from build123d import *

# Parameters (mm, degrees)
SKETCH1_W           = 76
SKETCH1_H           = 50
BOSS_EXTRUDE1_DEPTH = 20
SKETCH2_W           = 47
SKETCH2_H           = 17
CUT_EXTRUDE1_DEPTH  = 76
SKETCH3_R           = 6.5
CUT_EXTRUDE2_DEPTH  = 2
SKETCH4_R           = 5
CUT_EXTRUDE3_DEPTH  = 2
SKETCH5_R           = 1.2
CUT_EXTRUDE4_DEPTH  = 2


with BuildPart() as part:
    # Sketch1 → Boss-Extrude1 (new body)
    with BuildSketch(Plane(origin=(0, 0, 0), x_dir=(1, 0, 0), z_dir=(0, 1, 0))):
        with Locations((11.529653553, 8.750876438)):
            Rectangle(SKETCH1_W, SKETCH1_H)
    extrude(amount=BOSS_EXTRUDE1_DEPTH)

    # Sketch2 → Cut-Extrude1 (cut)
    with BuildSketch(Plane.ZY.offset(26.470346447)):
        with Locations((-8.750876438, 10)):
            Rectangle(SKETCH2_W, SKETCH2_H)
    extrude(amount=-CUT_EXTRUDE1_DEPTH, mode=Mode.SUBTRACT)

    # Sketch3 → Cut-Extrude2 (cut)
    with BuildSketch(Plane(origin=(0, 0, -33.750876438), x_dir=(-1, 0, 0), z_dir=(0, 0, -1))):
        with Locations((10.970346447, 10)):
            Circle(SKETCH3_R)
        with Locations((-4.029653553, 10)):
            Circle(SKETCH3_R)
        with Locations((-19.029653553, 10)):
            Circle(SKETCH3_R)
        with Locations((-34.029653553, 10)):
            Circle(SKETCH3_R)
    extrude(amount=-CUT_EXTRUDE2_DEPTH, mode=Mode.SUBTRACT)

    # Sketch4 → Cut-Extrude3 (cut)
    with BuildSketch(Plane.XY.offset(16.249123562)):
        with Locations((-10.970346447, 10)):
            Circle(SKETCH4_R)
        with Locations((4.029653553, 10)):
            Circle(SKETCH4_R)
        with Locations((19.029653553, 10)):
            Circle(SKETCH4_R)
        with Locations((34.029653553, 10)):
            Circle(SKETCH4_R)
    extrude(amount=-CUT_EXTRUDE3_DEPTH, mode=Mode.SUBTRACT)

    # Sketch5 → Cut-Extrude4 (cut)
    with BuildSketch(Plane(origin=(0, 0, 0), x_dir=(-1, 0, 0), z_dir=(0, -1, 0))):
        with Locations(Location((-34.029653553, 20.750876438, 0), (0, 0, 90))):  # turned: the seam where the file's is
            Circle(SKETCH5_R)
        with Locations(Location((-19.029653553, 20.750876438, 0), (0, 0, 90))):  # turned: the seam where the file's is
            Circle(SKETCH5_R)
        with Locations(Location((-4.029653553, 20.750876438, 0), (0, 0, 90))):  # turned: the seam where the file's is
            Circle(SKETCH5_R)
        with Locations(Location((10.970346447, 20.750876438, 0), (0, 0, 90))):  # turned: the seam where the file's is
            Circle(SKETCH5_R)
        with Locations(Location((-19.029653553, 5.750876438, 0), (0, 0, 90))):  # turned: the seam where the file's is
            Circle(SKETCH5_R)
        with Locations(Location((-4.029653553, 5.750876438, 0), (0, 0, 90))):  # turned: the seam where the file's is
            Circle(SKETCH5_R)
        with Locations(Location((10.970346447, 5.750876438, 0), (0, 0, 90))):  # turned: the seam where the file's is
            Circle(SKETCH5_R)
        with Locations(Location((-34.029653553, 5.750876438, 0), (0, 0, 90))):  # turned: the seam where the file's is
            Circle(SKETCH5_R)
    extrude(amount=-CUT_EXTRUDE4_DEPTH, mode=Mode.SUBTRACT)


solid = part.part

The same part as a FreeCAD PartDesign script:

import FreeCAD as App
import Part
import Sketcher
Q = App.Units.Quantity

doc = App.newDocument("Part")
body = doc.addObject("PartDesign::Body", "Body")

# Sketch on XZ plane
sketch1 = doc.addObject("Sketcher::SketchObject", "Sketch")
body.addObject(sketch1)
sketch1.AttachmentSupport = (doc.XZ_Plane, [""])
sketch1.MapMode = "FlatFace"
sketch1.addGeometry(Part.LineSegment(App.Vector(-26, -34, 0), App.Vector(-26, 16, 0)), False)
sketch1.addGeometry(Part.LineSegment(App.Vector(-26, 16, 0), App.Vector(50, 16, 0)), False)
sketch1.addGeometry(Part.LineSegment(App.Vector(50, 16, 0), App.Vector(50, -34, 0)), False)
sketch1.addGeometry(Part.LineSegment(App.Vector(50, -34, 0), App.Vector(-26, -34, 0)), False)
sketch1.addConstraint(Sketcher.Constraint("Coincident", 0, 2, 1, 1))
sketch1.addConstraint(Sketcher.Constraint("Coincident", 1, 2, 2, 1))
sketch1.addConstraint(Sketcher.Constraint("Coincident", 2, 2, 3, 1))
sketch1.addConstraint(Sketcher.Constraint("Coincident", 3, 2, 0, 1))
sketch1.addConstraint(Sketcher.Constraint("Vertical", 0))
sketch1.addConstraint(Sketcher.Constraint("Horizontal", 1))
sketch1.addConstraint(Sketcher.Constraint("Vertical", 2))
sketch1.addConstraint(Sketcher.Constraint("Horizontal", 3))
sketch1.addConstraint(Sketcher.Constraint("DistanceX", 1, 1, 1, 2, Q("76 mm")))
sketch1.addConstraint(Sketcher.Constraint("DistanceY", 0, 1, 0, 2, Q("50 mm")))
sketch1.addConstraint(Sketcher.Constraint("DistanceX", 0, 2, -1, 1, Q("26.470346 mm")))
sketch1.addConstraint(Sketcher.Constraint("DistanceY", -1, 1, 0, 2, Q("16.249124 mm")))
pad1 = doc.addObject("PartDesign::Pad", "Pad")
body.addObject(pad1)
pad1.Profile = sketch1
pad1.Length = 20
pad1.Reversed = True

# Sketch on YZ plane
sketch2 = doc.addObject("Sketcher::SketchObject", "Sketch001")
body.addObject(sketch2)
sketch2.AttachmentSupport = (doc.YZ_Plane, [""])
sketch2.MapMode = "FlatFace"
sketch2.AttachmentOffset = App.Placement(App.Vector(0, 0, -26.470346), App.Rotation())
sketch2.addGeometry(Part.LineSegment(App.Vector(18, -32, 0), App.Vector(2, -32, 0)), False)
sketch2.addGeometry(Part.LineSegment(App.Vector(2, -32, 0), App.Vector(2, 15, 0)), False)
sketch2.addGeometry(Part.LineSegment(App.Vector(2, 15, 0), App.Vector(18, 15, 0)), False)
sketch2.addGeometry(Part.LineSegment(App.Vector(18, 15, 0), App.Vector(18, -32, 0)), False)
sketch2.addConstraint(Sketcher.Constraint("Coincident", 0, 2, 1, 1))
sketch2.addConstraint(Sketcher.Constraint("Coincident", 1, 2, 2, 1))
sketch2.addConstraint(Sketcher.Constraint("Coincident", 2, 2, 3, 1))
sketch2.addConstraint(Sketcher.Constraint("Coincident", 3, 2, 0, 1))
sketch2.addConstraint(Sketcher.Constraint("Horizontal", 0))
sketch2.addConstraint(Sketcher.Constraint("Vertical", 1))
sketch2.addConstraint(Sketcher.Constraint("Horizontal", 2))
sketch2.addConstraint(Sketcher.Constraint("Vertical", 3))
sketch2.addConstraint(Sketcher.Constraint("DistanceX", 0, 2, 0, 1, Q("17 mm")))
sketch2.addConstraint(Sketcher.Constraint("DistanceY", 1, 1, 1, 2, Q("47 mm")))
sketch2.addConstraint(Sketcher.Constraint("DistanceX", -1, 1, 0, 2, Q("1.5 mm")))
sketch2.addConstraint(Sketcher.Constraint("DistanceY", 0, 2, -1, 1, Q("32.250876 mm")))
pocket1 = doc.addObject("PartDesign::Pocket", "Pocket")
body.addObject(pocket1)
pocket1.Profile = sketch2
pocket1.Length = 76
pocket1.Reversed = True

# Sketch on XY plane
sketch3 = doc.addObject("Sketcher::SketchObject", "Sketch002")
body.addObject(sketch3)
sketch3.AttachmentSupport = (doc.XY_Plane, [""])
sketch3.MapMode = "FlatFace"
sketch3.AttachmentOffset = App.Placement(App.Vector(0, 0, -33.750876), App.Rotation())
sketch3.addGeometry(Part.Circle(App.Vector(-11, 10, 0), App.Vector(0, 0, 1), 6), False)
sketch3.addGeometry(Part.Circle(App.Vector(4, 10, 0), App.Vector(0, 0, 1), 6), False)
sketch3.addGeometry(Part.Circle(App.Vector(19, 10, 0), App.Vector(0, 0, 1), 6), False)
sketch3.addGeometry(Part.Circle(App.Vector(34, 10, 0), App.Vector(0, 0, 1), 6), False)
sketch3.addConstraint(Sketcher.Constraint("Equal", 0, 1))
sketch3.addConstraint(Sketcher.Constraint("Equal", 1, 2))
sketch3.addConstraint(Sketcher.Constraint("Equal", 2, 3))
sketch3.addConstraint(Sketcher.Constraint("Horizontal", 0, 3, 1, 3))
sketch3.addConstraint(Sketcher.Constraint("Horizontal", 1, 3, 2, 3))
sketch3.addConstraint(Sketcher.Constraint("Horizontal", 2, 3, 3, 3))
sketch3.addConstraint(Sketcher.Constraint("Diameter", 0, Q("13 mm")))
sketch3.addConstraint(Sketcher.Constraint("DistanceY", -1, 1, 0, 3, Q("10 mm")))
sketch3.addConstraint(Sketcher.Constraint("DistanceX", 0, 3, 1, 3, Q("15 mm")))
sketch3.addConstraint(Sketcher.Constraint("DistanceX", 1, 3, 2, 3, Q("15 mm")))
sketch3.addConstraint(Sketcher.Constraint("DistanceX", 2, 3, 3, 3, Q("15 mm")))
sketch3.addConstraint(Sketcher.Constraint("DistanceX", 0, 3, -1, 1, Q("10.970346 mm")))
pocket2 = doc.addObject("PartDesign::Pocket", "Pocket001")
body.addObject(pocket2)
pocket2.Profile = sketch3
pocket2.Length = 2
pocket2.Reversed = True

# Sketch on XY plane
sketch4 = doc.addObject("Sketcher::SketchObject", "Sketch003")
body.addObject(sketch4)
sketch4.AttachmentSupport = (doc.XY_Plane, [""])
sketch4.MapMode = "FlatFace"
sketch4.AttachmentOffset = App.Placement(App.Vector(0, 0, 16.249124), App.Rotation())
sketch4.addGeometry(Part.Circle(App.Vector(-11, 10, 0), App.Vector(0, 0, 1), 5), False)
sketch4.addGeometry(Part.Circle(App.Vector(4, 10, 0), App.Vector(0, 0, 1), 5), False)
sketch4.addGeometry(Part.Circle(App.Vector(19, 10, 0), App.Vector(0, 0, 1), 5), False)
sketch4.addGeometry(Part.Circle(App.Vector(34, 10, 0), App.Vector(0, 0, 1), 5), False)
sketch4.addConstraint(Sketcher.Constraint("Equal", 0, 1))
sketch4.addConstraint(Sketcher.Constraint("Equal", 1, 2))
sketch4.addConstraint(Sketcher.Constraint("Equal", 2, 3))
sketch4.addConstraint(Sketcher.Constraint("Horizontal", 0, 3, 1, 3))
sketch4.addConstraint(Sketcher.Constraint("Horizontal", 1, 3, 2, 3))
sketch4.addConstraint(Sketcher.Constraint("Horizontal", 2, 3, 3, 3))
sketch4.addConstraint(Sketcher.Constraint("Diameter", 0, Q("10 mm")))
sketch4.addConstraint(Sketcher.Constraint("DistanceY", -1, 1, 0, 3, Q("10 mm")))
sketch4.addConstraint(Sketcher.Constraint("DistanceX", 0, 3, 1, 3, Q("15 mm")))
sketch4.addConstraint(Sketcher.Constraint("DistanceX", 1, 3, 2, 3, Q("15 mm")))
sketch4.addConstraint(Sketcher.Constraint("DistanceX", 2, 3, 3, 3, Q("15 mm")))
sketch4.addConstraint(Sketcher.Constraint("DistanceX", 0, 3, -1, 1, Q("10.970346 mm")))
pocket3 = doc.addObject("PartDesign::Pocket", "Pocket002")
body.addObject(pocket3)
pocket3.Profile = sketch4
pocket3.Length = 2

# Sketch on XZ plane
sketch5 = doc.addObject("Sketcher::SketchObject", "Sketch004")
body.addObject(sketch5)
sketch5.AttachmentSupport = (doc.XZ_Plane, [""])
sketch5.MapMode = "FlatFace"
sketch5.addGeometry(Part.Circle(App.Vector(34, -20.8, 0), App.Vector(0, 0, 1), 1.2), False)
sketch5.addGeometry(Part.Circle(App.Vector(19, -20.8, 0), App.Vector(0, 0, 1), 1.2), False)
sketch5.addGeometry(Part.Circle(App.Vector(4, -20.8, 0), App.Vector(0, 0, 1), 1.2), False)
sketch5.addGeometry(Part.Circle(App.Vector(-11, -20.8, 0), App.Vector(0, 0, 1), 1.2), False)
sketch5.addGeometry(Part.Circle(App.Vector(19, -5.8, 0), App.Vector(0, 0, 1), 1.2), False)
sketch5.addGeometry(Part.Circle(App.Vector(4, -5.8, 0), App.Vector(0, 0, 1), 1.2), False)
sketch5.addGeometry(Part.Circle(App.Vector(-11, -5.8, 0), App.Vector(0, 0, 1), 1.2), False)
sketch5.addGeometry(Part.Circle(App.Vector(34, -5.8, 0), App.Vector(0, 0, 1), 1.2), False)
sketch5.addConstraint(Sketcher.Constraint("Equal", 0, 1))
sketch5.addConstraint(Sketcher.Constraint("Equal", 1, 2))
sketch5.addConstraint(Sketcher.Constraint("Equal", 2, 3))
sketch5.addConstraint(Sketcher.Constraint("Equal", 3, 4))
sketch5.addConstraint(Sketcher.Constraint("Equal", 4, 5))
sketch5.addConstraint(Sketcher.Constraint("Equal", 5, 6))
sketch5.addConstraint(Sketcher.Constraint("Equal", 6, 7))
sketch5.addConstraint(Sketcher.Constraint("Horizontal", 0, 3, 1, 3))
sketch5.addConstraint(Sketcher.Constraint("Horizontal", 1, 3, 2, 3))
sketch5.addConstraint(Sketcher.Constraint("Horizontal", 2, 3, 3, 3))
sketch5.addConstraint(Sketcher.Constraint("Horizontal", 4, 3, 5, 3))
sketch5.addConstraint(Sketcher.Constraint("Horizontal", 5, 3, 6, 3))
sketch5.addConstraint(Sketcher.Constraint("Horizontal", 6, 3, 7, 3))
sketch5.addConstraint(Sketcher.Constraint("Vertical", 1, 3, 4, 3))
sketch5.addConstraint(Sketcher.Constraint("Vertical", 2, 3, 5, 3))
sketch5.addConstraint(Sketcher.Constraint("Vertical", 3, 3, 6, 3))
sketch5.addConstraint(Sketcher.Constraint("Vertical", 0, 3, 7, 3))
sketch5.addConstraint(Sketcher.Constraint("Diameter", 0, Q("2.4 mm")))
sketch5.addConstraint(Sketcher.Constraint("DistanceX", 1, 3, 0, 3, Q("15 mm")))
sketch5.addConstraint(Sketcher.Constraint("DistanceX", 2, 3, 1, 3, Q("15 mm")))
sketch5.addConstraint(Sketcher.Constraint("DistanceX", 3, 3, 2, 3, Q("15 mm")))
sketch5.addConstraint(Sketcher.Constraint("DistanceY", 1, 3, 4, 3, Q("15 mm")))
sketch5.addConstraint(Sketcher.Constraint("DistanceX", -1, 1, 0, 3, Q("34.029654 mm")))
sketch5.addConstraint(Sketcher.Constraint("DistanceY", 0, 3, -1, 1, Q("20.750876 mm")))
pocket4 = doc.addObject("PartDesign::Pocket", "Pocket003")
body.addObject(pocket4)
pocket4.Profile = sketch5
pocket4.Length = 2

doc.recompute()
